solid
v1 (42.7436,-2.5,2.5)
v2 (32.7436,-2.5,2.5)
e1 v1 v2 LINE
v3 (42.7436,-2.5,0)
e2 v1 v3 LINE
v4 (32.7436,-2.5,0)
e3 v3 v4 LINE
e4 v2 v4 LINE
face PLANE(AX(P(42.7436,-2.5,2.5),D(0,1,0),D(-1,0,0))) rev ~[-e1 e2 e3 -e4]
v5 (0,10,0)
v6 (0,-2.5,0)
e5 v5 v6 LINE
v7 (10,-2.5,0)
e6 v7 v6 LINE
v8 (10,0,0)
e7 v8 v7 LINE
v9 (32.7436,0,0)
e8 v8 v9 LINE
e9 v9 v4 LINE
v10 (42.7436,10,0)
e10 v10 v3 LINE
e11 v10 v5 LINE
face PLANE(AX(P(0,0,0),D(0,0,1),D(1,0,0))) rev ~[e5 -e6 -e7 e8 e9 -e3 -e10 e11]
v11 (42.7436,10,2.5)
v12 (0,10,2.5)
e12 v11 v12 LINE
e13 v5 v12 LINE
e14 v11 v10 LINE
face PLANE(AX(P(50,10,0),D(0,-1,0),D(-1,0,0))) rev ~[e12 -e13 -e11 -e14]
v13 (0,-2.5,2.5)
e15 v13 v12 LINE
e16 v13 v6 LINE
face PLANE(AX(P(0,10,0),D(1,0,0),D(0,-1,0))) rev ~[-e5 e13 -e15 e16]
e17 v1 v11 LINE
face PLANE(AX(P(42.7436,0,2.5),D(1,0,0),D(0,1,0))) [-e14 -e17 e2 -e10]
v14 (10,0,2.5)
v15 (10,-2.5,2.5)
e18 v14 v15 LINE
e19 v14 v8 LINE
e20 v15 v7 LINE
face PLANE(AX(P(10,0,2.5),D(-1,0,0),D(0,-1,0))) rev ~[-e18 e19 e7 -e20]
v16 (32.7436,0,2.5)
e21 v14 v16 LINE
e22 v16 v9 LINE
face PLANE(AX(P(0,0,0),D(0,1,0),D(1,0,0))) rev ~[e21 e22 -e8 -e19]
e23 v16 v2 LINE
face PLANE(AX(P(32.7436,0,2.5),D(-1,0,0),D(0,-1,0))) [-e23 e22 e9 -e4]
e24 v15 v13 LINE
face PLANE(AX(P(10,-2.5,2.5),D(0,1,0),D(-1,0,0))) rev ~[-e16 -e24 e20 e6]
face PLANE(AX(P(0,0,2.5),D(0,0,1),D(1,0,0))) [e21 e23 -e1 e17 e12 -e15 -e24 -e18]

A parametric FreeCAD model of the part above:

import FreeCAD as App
import Part
import Sketcher
from FreeCAD import Vector


def add_polygon(sketch, points):
    """Adds a closed chain of lines whose ends are joined by coincident constraints."""
    first, n = sketch.GeometryCount, len(points)
    for a, b in zip(points, points[1:] + points[:1]):
        sketch.addGeometry(Part.LineSegment(App.Vector(*a, 0), App.Vector(*b, 0)), False)
    for i in range(n):
        sketch.addConstraint(Sketcher.Constraint("Coincident", first + i, 2, first + (i + 1) % n, 1))

doc = App.newDocument("Part")
body = doc.addObject("PartDesign::Body", "Body")

sketch1 = doc.addObject("Sketcher::SketchObject", "Sketch")
body.addObject(sketch1)
sketch1.AttachmentSupport = (doc.XY_Plane, [""])
sketch1.MapMode = "FlatFace"
add_polygon(sketch1, [(0, 10), (0, 0), (50, 0), (50, 10)])
sketch1.addConstraint(Sketcher.Constraint("Vertical", 0))
sketch1.addConstraint(Sketcher.Constraint("Horizontal", 1))
sketch1.addConstraint(Sketcher.Constraint("Vertical", 2))
sketch1.addConstraint(Sketcher.Constraint("Horizontal", 3))
sketch1.addConstraint(Sketcher.Constraint("Coincident", 0, 2, -1, 1))
sketch1.addConstraint(Sketcher.Constraint("DistanceX", 1, 1, 1, 2, 50.0))
sketch1.addConstraint(Sketcher.Constraint("DistanceY", 0, 2, 0, 1, 10.0))
pad1 = doc.addObject("PartDesign::Pad", "Pad")
body.addObject(pad1)
pad1.Profile = sketch1
pad1.Length = 2.5

sketch2 = doc.addObject("Sketcher::SketchObject", "Sketch001")
body.addObject(sketch2)
sketch2.AttachmentSupport = (doc.XY_Plane, [""])
sketch2.MapMode = "FlatFace"
sketch2.AttachmentOffset = App.Placement(Vector(0, 0, 2.5), App.Rotation())
add_polygon(sketch2, [(43, 10), (43, 0), (50, 0), (50, 10)])
sketch2.addConstraint(Sketcher.Constraint("Vertical", 0))
sketch2.addConstraint(Sketcher.Constraint("Horizontal", 1))
sketch2.addConstraint(Sketcher.Constraint("Vertical", 2))
sketch2.addConstraint(Sketcher.Constraint("Horizontal", 3))
sketch2.addConstraint(Sketcher.Constraint("PointOnObject", 0, 2, -1))
sketch2.addConstraint(Sketcher.Constraint("DistanceY", 0, 2, 0, 1, 10.0))
sketch2.addConstraint(Sketcher.Constraint("DistanceX", -1, 1, 1, 2, 50.0))
sketch2.addConstraint(Sketcher.Constraint("DistanceX", 1, 1, 1, 2, 7.2564))
pocket1 = doc.addObject("PartDesign::Pocket", "Pocket")
body.addObject(pocket1)
pocket1.Profile = sketch2
pocket1.Type = "ThroughAll"

sketch3 = doc.addObject("Sketcher::SketchObject", "Sketch002")
body.addObject(sketch3)
sketch3.AttachmentSupport = (doc.XY_Plane, [""])
sketch3.MapMode = "FlatFace"
sketch3.AttachmentOffset = App.Placement(Vector(0, 0, 2.5), App.Rotation())
add_polygon(sketch3, [(0, -2.5), (10, -2.5), (10, 0), (0, 0)])
add_polygon(sketch3, [(32.7, -2.5), (42.7, -2.5), (42.7, 0), (32.7, 0)])
sketch3.addConstraint(Sketcher.Constraint("Horizontal", 0))
sketch3.addConstraint(Sketcher.Constraint("Vertical", 1))
sketch3.addConstraint(Sketcher.Constraint("Horizontal", 2))
sketch3.addConstraint(Sketcher.Constraint("Vertical", 3))
sketch3.addConstraint(Sketcher.Constraint("Horizontal", 4))
sketch3.addConstraint(Sketcher.Constraint("Vertical", 5))
sketch3.addConstraint(Sketcher.Constraint("Horizontal", 6))
sketch3.addConstraint(Sketcher.Constraint("Vertical", 7))
sketch3.addConstraint(Sketcher.Constraint("Coincident", 2, 2, -1, 1))
sketch3.addConstraint(Sketcher.Constraint("PointOnObject", 5, 2, -1))
sketch3.addConstraint(Sketcher.Constraint("Horizontal", 3, 2, 4, 2))
sketch3.addConstraint(Sketcher.Constraint("Equal", 2, 4))
sketch3.addConstraint(Sketcher.Constraint("DistanceX", 0, 1, 0, 2, 10.0))
sketch3.addConstraint(Sketcher.Constraint("DistanceY", 1, 1, 1, 2, 2.5))
sketch3.addConstraint(Sketcher.Constraint("DistanceX", -1, 1, 4, 2, 42.7436))
pad2 = doc.addObject("PartDesign::Pad", "Pad001")
body.addObject(pad2)
pad2.Profile = sketch3
pad2.Length = 2.5
pad2.Reversed = True

doc.recompute()
